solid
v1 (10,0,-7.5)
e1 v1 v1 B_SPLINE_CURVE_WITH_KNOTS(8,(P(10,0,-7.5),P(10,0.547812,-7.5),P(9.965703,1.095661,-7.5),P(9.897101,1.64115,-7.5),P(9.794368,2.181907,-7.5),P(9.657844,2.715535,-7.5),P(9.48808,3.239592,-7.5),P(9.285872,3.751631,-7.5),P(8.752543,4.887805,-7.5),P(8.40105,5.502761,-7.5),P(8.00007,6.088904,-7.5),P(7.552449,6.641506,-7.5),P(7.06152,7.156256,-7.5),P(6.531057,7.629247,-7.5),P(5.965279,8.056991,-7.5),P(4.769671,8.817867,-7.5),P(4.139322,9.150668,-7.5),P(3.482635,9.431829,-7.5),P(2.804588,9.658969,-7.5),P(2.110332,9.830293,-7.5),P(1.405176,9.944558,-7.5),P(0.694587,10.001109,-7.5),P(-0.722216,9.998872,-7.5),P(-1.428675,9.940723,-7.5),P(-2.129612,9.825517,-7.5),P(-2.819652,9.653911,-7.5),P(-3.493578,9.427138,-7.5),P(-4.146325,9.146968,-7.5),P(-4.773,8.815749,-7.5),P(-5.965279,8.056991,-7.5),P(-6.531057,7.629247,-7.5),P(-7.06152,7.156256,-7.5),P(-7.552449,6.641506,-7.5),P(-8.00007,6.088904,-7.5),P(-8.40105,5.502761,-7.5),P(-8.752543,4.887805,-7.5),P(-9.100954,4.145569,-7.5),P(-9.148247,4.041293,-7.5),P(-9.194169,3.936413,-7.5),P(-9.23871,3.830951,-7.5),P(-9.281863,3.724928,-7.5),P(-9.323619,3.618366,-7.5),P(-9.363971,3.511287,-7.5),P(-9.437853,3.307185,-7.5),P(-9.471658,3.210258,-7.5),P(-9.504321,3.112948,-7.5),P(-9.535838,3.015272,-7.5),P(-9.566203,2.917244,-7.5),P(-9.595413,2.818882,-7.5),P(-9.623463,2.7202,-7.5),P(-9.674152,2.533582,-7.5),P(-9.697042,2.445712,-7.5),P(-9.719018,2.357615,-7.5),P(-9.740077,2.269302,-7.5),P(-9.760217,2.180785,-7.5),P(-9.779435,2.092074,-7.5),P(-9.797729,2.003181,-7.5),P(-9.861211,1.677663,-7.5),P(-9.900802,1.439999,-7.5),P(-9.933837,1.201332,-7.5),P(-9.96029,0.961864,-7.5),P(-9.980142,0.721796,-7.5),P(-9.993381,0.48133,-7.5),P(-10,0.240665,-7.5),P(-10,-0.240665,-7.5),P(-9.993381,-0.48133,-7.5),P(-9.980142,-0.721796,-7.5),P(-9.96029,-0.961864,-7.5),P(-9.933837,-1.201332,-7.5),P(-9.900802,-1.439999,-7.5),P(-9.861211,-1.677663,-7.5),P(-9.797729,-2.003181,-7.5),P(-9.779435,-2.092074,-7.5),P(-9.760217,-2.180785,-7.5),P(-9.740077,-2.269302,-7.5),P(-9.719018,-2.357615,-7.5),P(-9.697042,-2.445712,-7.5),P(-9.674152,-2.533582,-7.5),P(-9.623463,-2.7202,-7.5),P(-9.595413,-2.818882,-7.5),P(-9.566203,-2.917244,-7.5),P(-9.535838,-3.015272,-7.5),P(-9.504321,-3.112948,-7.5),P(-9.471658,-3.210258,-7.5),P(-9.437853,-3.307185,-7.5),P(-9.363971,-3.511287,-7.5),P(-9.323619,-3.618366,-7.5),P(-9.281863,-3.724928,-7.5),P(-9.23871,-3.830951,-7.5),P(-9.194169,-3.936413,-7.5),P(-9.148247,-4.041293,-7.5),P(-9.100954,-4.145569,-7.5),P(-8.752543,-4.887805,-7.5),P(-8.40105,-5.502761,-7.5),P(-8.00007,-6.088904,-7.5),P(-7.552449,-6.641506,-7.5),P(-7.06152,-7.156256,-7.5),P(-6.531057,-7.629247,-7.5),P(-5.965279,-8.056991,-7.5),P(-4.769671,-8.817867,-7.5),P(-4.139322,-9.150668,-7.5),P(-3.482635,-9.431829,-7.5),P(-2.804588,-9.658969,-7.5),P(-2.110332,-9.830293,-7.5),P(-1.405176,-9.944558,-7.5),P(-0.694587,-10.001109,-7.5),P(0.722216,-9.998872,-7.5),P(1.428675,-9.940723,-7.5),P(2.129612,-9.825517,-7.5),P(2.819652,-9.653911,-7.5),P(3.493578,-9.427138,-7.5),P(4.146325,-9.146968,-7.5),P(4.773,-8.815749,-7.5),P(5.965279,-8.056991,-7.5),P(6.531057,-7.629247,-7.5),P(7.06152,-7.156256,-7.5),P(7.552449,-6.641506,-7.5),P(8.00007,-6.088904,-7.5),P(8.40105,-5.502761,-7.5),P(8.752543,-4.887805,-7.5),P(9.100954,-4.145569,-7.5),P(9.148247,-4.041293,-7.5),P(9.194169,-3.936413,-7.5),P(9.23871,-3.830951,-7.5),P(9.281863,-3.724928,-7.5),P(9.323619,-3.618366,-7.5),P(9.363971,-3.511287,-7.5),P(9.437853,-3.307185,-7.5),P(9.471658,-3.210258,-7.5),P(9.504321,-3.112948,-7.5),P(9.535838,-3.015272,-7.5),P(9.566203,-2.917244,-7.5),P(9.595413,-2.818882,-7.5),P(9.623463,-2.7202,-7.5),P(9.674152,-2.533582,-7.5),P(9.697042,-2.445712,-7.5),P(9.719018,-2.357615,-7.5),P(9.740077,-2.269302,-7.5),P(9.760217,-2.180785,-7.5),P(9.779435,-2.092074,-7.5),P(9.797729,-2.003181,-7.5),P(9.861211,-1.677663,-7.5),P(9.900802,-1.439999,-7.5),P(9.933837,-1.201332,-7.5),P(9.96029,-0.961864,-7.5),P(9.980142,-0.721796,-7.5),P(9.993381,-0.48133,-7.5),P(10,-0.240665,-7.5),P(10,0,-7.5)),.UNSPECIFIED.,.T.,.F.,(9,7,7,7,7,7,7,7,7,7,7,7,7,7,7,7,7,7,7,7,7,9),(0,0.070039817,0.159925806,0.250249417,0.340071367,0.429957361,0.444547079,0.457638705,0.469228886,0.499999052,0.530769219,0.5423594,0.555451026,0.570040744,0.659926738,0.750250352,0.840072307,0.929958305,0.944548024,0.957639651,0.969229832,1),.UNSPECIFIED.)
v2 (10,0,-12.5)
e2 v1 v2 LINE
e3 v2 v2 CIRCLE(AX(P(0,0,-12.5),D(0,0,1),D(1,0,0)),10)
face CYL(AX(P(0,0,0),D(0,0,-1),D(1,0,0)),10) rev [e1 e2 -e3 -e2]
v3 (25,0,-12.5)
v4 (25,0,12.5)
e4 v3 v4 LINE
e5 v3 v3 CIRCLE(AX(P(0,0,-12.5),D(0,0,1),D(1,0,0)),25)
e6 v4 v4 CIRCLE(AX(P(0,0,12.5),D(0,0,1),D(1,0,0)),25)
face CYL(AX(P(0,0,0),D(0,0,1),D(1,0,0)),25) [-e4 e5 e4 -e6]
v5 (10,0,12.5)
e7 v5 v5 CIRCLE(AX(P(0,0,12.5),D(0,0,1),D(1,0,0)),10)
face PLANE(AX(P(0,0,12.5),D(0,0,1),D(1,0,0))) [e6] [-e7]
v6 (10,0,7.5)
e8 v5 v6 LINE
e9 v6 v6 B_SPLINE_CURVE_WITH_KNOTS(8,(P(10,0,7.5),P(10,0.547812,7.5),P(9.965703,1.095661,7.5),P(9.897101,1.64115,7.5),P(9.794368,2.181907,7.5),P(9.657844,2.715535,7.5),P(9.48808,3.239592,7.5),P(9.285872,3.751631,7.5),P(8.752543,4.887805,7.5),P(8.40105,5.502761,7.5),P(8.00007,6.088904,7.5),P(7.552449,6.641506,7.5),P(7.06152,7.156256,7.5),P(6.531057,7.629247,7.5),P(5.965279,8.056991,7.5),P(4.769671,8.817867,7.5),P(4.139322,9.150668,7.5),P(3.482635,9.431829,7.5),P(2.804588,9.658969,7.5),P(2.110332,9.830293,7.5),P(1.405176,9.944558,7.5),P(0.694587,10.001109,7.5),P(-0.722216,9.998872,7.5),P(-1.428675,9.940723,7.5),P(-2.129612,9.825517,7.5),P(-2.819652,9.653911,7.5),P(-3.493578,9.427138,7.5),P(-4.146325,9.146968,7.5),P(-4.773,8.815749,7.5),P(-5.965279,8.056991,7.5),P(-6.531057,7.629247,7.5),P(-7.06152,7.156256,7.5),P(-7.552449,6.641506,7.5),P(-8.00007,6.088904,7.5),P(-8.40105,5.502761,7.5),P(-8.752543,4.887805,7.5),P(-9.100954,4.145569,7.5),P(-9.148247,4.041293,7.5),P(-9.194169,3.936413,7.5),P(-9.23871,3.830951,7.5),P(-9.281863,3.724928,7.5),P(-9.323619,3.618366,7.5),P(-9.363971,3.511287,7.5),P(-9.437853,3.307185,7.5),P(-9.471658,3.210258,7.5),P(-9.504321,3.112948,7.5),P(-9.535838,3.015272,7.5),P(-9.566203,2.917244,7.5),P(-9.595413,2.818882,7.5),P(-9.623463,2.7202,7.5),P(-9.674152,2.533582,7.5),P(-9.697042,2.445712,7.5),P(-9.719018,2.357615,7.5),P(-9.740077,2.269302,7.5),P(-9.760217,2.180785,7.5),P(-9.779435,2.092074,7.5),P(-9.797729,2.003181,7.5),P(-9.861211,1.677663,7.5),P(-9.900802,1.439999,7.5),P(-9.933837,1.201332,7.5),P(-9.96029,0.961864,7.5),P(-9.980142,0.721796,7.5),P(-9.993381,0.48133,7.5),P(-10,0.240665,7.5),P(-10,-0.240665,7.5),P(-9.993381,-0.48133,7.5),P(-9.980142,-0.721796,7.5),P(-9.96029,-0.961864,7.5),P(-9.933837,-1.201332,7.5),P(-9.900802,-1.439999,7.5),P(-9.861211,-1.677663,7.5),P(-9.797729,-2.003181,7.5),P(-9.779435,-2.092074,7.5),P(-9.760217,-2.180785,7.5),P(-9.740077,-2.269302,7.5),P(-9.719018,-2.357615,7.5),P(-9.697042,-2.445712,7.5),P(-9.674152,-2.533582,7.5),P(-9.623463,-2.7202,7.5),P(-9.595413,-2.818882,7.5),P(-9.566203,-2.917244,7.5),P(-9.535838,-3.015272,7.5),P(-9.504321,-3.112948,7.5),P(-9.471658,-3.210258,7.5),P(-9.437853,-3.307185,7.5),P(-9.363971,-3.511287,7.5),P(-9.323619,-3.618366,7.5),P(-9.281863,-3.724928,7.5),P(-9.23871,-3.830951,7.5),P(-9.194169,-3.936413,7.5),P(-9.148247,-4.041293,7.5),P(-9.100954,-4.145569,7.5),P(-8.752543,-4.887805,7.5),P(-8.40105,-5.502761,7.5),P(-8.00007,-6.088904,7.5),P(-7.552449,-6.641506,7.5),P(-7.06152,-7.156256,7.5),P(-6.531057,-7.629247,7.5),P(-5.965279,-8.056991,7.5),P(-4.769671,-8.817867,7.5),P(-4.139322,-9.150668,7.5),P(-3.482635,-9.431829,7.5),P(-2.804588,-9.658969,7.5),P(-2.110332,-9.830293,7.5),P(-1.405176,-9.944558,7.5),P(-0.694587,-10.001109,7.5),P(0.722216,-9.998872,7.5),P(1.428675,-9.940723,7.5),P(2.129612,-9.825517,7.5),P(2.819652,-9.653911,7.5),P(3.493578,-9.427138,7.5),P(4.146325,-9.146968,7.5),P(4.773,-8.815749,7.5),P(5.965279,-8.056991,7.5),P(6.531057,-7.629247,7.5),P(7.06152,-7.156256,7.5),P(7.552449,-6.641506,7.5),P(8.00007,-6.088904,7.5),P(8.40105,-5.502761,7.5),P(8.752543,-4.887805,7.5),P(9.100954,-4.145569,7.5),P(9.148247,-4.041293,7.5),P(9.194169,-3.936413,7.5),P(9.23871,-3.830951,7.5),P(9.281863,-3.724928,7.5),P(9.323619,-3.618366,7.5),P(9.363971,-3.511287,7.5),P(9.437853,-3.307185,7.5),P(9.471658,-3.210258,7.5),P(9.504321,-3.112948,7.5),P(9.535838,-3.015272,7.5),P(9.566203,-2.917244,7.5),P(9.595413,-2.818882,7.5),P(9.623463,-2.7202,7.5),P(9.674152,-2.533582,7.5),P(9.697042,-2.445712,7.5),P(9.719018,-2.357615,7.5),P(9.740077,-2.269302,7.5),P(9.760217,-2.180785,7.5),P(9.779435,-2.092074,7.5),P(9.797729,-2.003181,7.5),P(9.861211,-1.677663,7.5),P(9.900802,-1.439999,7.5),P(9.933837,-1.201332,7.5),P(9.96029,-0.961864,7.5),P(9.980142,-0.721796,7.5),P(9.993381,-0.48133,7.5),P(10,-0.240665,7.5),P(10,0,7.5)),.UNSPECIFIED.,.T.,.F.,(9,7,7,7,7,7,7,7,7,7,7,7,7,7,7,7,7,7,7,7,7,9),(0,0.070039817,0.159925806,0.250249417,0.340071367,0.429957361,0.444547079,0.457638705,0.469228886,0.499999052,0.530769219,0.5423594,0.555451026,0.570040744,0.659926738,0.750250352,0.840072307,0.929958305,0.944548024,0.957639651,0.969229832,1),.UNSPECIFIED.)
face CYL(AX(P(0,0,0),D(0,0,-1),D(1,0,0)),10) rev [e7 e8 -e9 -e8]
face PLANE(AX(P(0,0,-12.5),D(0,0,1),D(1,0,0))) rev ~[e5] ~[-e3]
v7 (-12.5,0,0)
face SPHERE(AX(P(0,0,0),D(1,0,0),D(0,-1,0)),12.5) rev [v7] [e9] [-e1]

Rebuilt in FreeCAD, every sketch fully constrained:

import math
import FreeCAD as App
import Part
import Sketcher
Q = App.Units.Quantity

doc = App.newDocument("Part")
params = doc.addObject("Spreadsheet::Sheet", "Params")
for row, (alias, value) in enumerate([
    ("sketch1_diameter", "50 mm"),
    ("sketch1_diameter2", "20 mm"),
    ("pad1_length", "25 mm"),
    ("sketch2_radius", "12.5 mm"),
    ("groove_angle", "360 deg"),
], start=1):
    params.set(f"A{row}", alias)
    params.set(f"B{row}", "=" + value)
    params.setAlias(f"B{row}", alias)

body = doc.addObject("PartDesign::Body", "Body")

# Sketch on XY plane
sketch1 = doc.addObject("Sketcher::SketchObject", "Sketch")
body.addObject(sketch1)
sketch1.AttachmentSupport = (doc.XY_Plane, [""])
sketch1.MapMode = "FlatFace"
sketch1.addGeometry(Part.Circle(App.Vector(0, 0, 0), App.Vector(0, 0, 1), 25), False)
sketch1.addGeometry(Part.Circle(App.Vector(0, 0, 0), App.Vector(0, 0, 1), 10), False)
sketch1.addConstraint(Sketcher.Constraint("Coincident", 0, 3, -1, 1))
sketch1.addConstraint(Sketcher.Constraint("Coincident", 1, 3, -1, 1))
sketch1.addConstraint(Sketcher.Constraint("Diameter", 0, Q("50 mm")))
sketch1.addConstraint(Sketcher.Constraint("Diameter", 1, Q("20 mm")))
sketch1.setExpression("Constraints[2]", "Params.sketch1_diameter")
sketch1.setExpression("Constraints[3]", "Params.sketch1_diameter2")
pad1 = doc.addObject("PartDesign::Pad", "Pad")
body.addObject(pad1)
pad1.Profile = sketch1
pad1.setExpression("Length", "Params.pad1_length")
pad1.Midplane = True

# Sketch on XY plane
sketch2 = doc.addObject("Sketcher::SketchObject", "Sketch001")
body.addObject(sketch2)
sketch2.AttachmentSupport = (doc.XY_Plane, [""])
sketch2.MapMode = "FlatFace"
sketch2.addGeometry(Part.LineSegment(App.Vector(12, 0, 0), App.Vector(-12, 0, 0)), False)
sketch2.addGeometry(Part.ArcOfCircle(Part.Circle(App.Vector(0, 0, 0), App.Vector(0, 0, 1), 12), math.radians(180), math.radians(360)), False)
sketch2.addConstraint(Sketcher.Constraint("Coincident", 0, 1, 1, 2))
sketch2.addConstraint(Sketcher.Constraint("Coincident", 1, 1, 0, 2))
sketch2.addConstraint(Sketcher.Constraint("Horizontal", 0))
sketch2.addConstraint(Sketcher.Constraint("Coincident", 1, 3, -1, 1))
sketch2.addConstraint(Sketcher.Constraint("PointOnObject", 0, 1, -1))
sketch2.addConstraint(Sketcher.Constraint("Radius", 1, Q("12.5 mm")))
sketch2.setExpression("Constraints[5]", "Params.sketch2_radius")
groove = doc.addObject("PartDesign::Groove", "Groove")
body.addObject(groove)
groove.Profile = sketch2
groove.ReferenceAxis = (sketch2, ["H_Axis"])
groove.setExpression("Angle", "Params.groove_angle")

doc.recompute()
